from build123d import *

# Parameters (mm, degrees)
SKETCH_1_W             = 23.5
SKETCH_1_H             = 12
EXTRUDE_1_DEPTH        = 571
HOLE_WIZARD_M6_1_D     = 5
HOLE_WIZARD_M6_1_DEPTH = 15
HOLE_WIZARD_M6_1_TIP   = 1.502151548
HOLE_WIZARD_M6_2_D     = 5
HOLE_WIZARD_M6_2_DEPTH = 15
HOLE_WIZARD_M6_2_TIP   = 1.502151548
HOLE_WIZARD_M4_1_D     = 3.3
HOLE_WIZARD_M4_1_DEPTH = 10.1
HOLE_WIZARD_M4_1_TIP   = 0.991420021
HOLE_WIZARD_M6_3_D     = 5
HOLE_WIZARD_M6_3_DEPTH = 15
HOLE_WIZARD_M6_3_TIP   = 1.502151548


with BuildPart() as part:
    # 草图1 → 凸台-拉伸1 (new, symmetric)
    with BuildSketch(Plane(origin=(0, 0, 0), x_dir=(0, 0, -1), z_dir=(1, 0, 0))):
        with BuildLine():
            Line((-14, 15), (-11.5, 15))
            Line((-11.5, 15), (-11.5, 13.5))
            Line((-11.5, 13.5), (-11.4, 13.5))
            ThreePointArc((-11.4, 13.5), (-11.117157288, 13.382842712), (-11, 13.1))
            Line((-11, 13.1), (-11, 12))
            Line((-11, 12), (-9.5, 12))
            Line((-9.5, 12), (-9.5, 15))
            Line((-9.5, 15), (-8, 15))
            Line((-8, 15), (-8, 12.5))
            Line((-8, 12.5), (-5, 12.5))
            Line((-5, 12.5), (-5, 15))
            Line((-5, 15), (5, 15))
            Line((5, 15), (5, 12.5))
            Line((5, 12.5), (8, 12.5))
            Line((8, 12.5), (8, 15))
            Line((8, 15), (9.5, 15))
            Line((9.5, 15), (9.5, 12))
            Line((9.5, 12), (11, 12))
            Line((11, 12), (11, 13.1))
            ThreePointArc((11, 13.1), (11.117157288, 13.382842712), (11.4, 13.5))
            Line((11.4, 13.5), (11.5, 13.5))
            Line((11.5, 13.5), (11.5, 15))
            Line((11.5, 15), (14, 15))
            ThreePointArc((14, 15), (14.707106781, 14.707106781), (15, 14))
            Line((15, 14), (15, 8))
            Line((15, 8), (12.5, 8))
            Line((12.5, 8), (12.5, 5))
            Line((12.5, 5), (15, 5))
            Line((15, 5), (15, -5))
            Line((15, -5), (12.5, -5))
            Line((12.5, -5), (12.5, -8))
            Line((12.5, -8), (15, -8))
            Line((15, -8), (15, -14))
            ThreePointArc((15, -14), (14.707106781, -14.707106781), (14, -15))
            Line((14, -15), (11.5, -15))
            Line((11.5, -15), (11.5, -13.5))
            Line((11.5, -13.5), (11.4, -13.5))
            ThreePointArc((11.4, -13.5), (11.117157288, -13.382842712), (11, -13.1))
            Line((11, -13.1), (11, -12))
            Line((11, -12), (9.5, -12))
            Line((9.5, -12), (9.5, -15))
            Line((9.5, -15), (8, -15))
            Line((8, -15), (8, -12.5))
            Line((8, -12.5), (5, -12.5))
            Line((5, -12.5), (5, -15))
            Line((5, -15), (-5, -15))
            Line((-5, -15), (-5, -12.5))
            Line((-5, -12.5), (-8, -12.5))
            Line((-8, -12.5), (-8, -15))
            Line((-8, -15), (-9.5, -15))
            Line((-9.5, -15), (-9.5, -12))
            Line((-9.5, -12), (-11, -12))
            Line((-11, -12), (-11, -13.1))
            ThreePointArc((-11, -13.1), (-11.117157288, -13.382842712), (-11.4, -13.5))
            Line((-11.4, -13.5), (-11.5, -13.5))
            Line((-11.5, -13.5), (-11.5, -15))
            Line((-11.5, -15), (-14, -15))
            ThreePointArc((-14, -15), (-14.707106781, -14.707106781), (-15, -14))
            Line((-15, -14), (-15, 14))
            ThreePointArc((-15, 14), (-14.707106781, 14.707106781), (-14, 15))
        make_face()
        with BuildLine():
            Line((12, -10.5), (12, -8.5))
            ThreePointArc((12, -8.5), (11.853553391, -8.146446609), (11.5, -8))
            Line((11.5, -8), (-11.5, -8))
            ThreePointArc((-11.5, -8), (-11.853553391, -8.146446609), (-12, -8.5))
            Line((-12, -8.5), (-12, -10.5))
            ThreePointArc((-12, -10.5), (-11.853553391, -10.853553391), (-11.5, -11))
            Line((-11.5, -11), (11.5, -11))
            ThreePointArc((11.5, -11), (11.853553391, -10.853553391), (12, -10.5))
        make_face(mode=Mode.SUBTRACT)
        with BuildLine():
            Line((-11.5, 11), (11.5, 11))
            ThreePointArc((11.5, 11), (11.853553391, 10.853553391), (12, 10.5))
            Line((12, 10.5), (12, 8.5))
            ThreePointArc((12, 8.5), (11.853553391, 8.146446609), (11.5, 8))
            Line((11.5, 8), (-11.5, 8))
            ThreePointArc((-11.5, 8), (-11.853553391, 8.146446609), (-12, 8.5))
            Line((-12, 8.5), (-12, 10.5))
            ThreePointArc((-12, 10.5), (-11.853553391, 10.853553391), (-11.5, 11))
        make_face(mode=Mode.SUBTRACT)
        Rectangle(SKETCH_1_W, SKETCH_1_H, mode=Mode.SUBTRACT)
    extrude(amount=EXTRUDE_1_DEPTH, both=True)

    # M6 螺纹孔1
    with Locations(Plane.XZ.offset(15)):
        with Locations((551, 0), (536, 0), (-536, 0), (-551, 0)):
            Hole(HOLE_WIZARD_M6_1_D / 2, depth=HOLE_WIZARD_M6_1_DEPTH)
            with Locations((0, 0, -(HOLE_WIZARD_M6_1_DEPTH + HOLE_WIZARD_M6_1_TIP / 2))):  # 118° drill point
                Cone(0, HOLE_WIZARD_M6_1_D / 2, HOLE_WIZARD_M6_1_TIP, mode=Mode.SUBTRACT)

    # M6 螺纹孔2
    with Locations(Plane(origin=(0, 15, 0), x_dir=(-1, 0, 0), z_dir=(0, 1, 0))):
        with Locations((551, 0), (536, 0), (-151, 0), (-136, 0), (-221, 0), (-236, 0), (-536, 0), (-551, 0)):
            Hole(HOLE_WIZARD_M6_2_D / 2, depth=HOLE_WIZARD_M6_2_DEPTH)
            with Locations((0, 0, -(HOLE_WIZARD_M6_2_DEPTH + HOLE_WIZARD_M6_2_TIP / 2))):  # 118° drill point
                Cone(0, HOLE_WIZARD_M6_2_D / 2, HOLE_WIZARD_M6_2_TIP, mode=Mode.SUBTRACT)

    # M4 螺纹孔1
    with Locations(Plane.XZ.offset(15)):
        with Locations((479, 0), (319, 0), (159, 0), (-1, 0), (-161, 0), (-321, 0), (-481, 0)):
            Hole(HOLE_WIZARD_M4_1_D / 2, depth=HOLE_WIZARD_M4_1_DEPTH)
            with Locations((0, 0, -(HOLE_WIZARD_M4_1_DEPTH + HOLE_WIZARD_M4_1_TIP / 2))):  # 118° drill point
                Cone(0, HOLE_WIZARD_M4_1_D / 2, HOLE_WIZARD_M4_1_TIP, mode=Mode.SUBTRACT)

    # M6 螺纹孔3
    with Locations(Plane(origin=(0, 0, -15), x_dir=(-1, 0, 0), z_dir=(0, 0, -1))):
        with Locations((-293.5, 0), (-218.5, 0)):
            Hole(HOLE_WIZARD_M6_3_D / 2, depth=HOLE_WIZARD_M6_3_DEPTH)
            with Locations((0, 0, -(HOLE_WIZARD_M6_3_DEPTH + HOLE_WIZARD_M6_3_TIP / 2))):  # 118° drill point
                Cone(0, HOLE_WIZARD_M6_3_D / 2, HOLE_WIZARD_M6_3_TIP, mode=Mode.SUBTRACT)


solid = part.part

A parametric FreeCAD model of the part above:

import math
import FreeCAD as App
import Part
import Sketcher

V = App.Vector
Q = App.Units.Quantity

doc = App.newDocument("Part")
body = doc.addObject("PartDesign::Body", "Body")

# Sketch on YZ plane
sketch1 = body.newObject("Sketcher::SketchObject", "Sketch")
sketch1.AttachmentSupport = (doc.getObject("YZ_Plane"), [""])
sketch1.MapMode = "FlatFace"
sketch1.addGeometry([
    Part.LineSegment(V(15, 11.5, 0), V(15, 14, 0)),  # 0
    Part.ArcOfCircle(Part.Circle(V(14, 14, 0), V(0, 0, 1), 1), math.radians(0), math.radians(90)),  # 1
    Part.LineSegment(V(14, 15, 0), V(-14, 15, 0)),  # 2
    Part.ArcOfCircle(Part.Circle(V(-14, 14, 0), V(0, 0, 1), 1), math.radians(90), math.radians(180)),  # 3
    Part.LineSegment(V(-15, 14, 0), V(-15, 11.5, 0)),  # 4
    Part.LineSegment(V(-15, 11.5, 0), V(-13.5, 11.5, 0)),  # 5
    Part.LineSegment(V(-13.5, 11.5, 0), V(-13.5, 11.4, 0)),  # 6
    Part.ArcOfCircle(Part.Circle(V(-13.1, 11.4, 0), V(0, 0, 1), 0.4), math.radians(-180), math.radians(-90)),  # 7
    Part.LineSegment(V(-13.1, 11, 0), V(-12, 11, 0)),  # 8
    Part.LineSegment(V(-12, 11, 0), V(-12, 9.5, 0)),  # 9
    Part.LineSegment(V(-12, 9.5, 0), V(-15, 9.5, 0)),  # 10
    Part.LineSegment(V(-15, 9.5, 0), V(-15, 8, 0)),  # 11
    Part.LineSegment(V(-15, 8, 0), V(-12.5, 8, 0)),  # 12
    Part.LineSegment(V(-12.5, 8, 0), V(-12.5, 5, 0)),  # 13
    Part.LineSegment(V(-12.5, 5, 0), V(-15, 5, 0)),  # 14
    Part.LineSegment(V(-15, 5, 0), V(-15, -5, 0)),  # 15
    Part.LineSegment(V(-15, -5, 0), V(-12.5, -5, 0)),  # 16
    Part.LineSegment(V(-12.5, -5, 0), V(-12.5, -8, 0)),  # 17
    Part.LineSegment(V(-12.5, -8, 0), V(-15, -8, 0)),  # 18
    Part.LineSegment(V(-15, -8, 0), V(-15, -9.5, 0)),  # 19
    Part.LineSegment(V(-15, -9.5, 0), V(-12, -9.5, 0)),  # 20
    Part.LineSegment(V(-12, -9.5, 0), V(-12, -11, 0)),  # 21
    Part.LineSegment(V(-12, -11, 0), V(-13.1, -11, 0)),  # 22
    Part.ArcOfCircle(Part.Circle(V(-13.1, -11.4, 0), V(0, 0, 1), 0.4), math.radians(90), math.radians(180)),  # 23
    Part.LineSegment(V(-13.5, -11.4, 0), V(-13.5, -11.5, 0)),  # 24
    Part.LineSegment(V(-13.5, -11.5, 0), V(-15, -11.5, 0)),  # 25
    Part.LineSegment(V(-15, -11.5, 0), V(-15, -14, 0)),  # 26
    Part.ArcOfCircle(Part.Circle(V(-14, -14, 0), V(0, 0, 1), 1), math.radians(-180), math.radians(-90)),  # 27
    Part.LineSegment(V(-14, -15, 0), V(-8, -15, 0)),  # 28
    Part.LineSegment(V(-8, -15, 0), V(-8, -12.5, 0)),  # 29
    Part.LineSegment(V(-8, -12.5, 0), V(-5, -12.5, 0)),  # 30
    Part.LineSegment(V(-5, -12.5, 0), V(-5, -15, 0)),  # 31
    Part.LineSegment(V(-5, -15, 0), V(5, -15, 0)),  # 32
    Part.LineSegment(V(5, -15, 0), V(5, -12.5, 0)),  # 33
    Part.LineSegment(V(5, -12.5, 0), V(8, -12.5, 0)),  # 34
    Part.LineSegment(V(8, -12.5, 0), V(8, -15, 0)),  # 35
    Part.LineSegment(V(8, -15, 0), V(14, -15, 0)),  # 36
    Part.ArcOfCircle(Part.Circle(V(14, -14, 0), V(0, 0, 1), 1), math.radians(-90), math.radians(0)),  # 37
    Part.LineSegment(V(15, -14, 0), V(15, -11.5, 0)),  # 38
    Part.LineSegment(V(15, -11.5, 0), V(13.5, -11.5, 0)),  # 39
    Part.LineSegment(V(13.5, -11.5, 0), V(13.5, -11.4, 0)),  # 40
    Part.ArcOfCircle(Part.Circle(V(13.1, -11.4, 0), V(0, 0, 1), 0.4), math.radians(0), math.radians(90)),  # 41
    Part.LineSegment(V(13.1, -11, 0), V(12, -11, 0)),  # 42
    Part.LineSegment(V(12, -11, 0), V(12, -9.5, 0)),  # 43
    Part.LineSegment(V(12, -9.5, 0), V(15, -9.5, 0)),  # 44
    Part.LineSegment(V(15, -9.5, 0), V(15, -8, 0)),  # 45
    Part.LineSegment(V(15, -8, 0), V(12.5, -8, 0)),  # 46
    Part.LineSegment(V(12.5, -8, 0), V(12.5, -5, 0)),  # 47
    Part.LineSegment(V(12.5, -5, 0), V(15, -5, 0)),  # 48
    Part.LineSegment(V(15, -5, 0), V(15, 5, 0)),  # 49
    Part.LineSegment(V(15, 5, 0), V(12.5, 5, 0)),  # 50
    Part.LineSegment(V(12.5, 5, 0), V(12.5, 8, 0)),  # 51
    Part.LineSegment(V(12.5, 8, 0), V(15, 8, 0)),  # 52
    Part.LineSegment(V(15, 8, 0), V(15, 9.5, 0)),  # 53
    Part.LineSegment(V(15, 9.5, 0), V(12, 9.5, 0)),  # 54
    Part.LineSegment(V(12, 9.5, 0), V(12, 11, 0)),  # 55
    Part.LineSegment(V(12, 11, 0), V(13.1, 11, 0)),  # 56
    Part.ArcOfCircle(Part.Circle(V(13.1, 11.4, 0), V(0, 0, 1), 0.4), math.radians(-90), math.radians(0)),  # 57
    Part.LineSegment(V(13.5, 11.4, 0), V(13.5, 11.5, 0)),  # 58
    Part.LineSegment(V(13.5, 11.5, 0), V(15, 11.5, 0)),  # 59
    Part.ArcOfCircle(Part.Circle(V(-10.5, -11.5, 0), V(0, 0, 1), 0.5), math.radians(180), math.radians(270)),  # 60
    Part.LineSegment(V(-11, -11.5, 0), V(-11, 11.5, 0)),  # 61
    Part.ArcOfCircle(Part.Circle(V(-10.5, 11.5, 0), V(0, 0, 1), 0.5), math.radians(90), math.radians(180)),  # 62
    Part.LineSegment(V(-10.5, 12, 0), V(-8.5, 12, 0)),  # 63
    Part.ArcOfCircle(Part.Circle(V(-8.5, 11.5, 0), V(0, 0, 1), 0.5), math.radians(0), math.radians(90)),  # 64
    Part.LineSegment(V(-8, 11.5, 0), V(-8, -11.5, 0)),  # 65
    Part.ArcOfCircle(Part.Circle(V(-8.5, -11.5, 0), V(0, 0, 1), 0.5), math.radians(-90), math.radians(0)),  # 66
    Part.LineSegment(V(-8.5, -12, 0), V(-10.5, -12, 0)),  # 67
    Part.LineSegment(V(-6, 11.75, 0), V(6, 11.75, 0)),  # 68
    Part.LineSegment(V(6, 11.75, 0), V(6, -11.75, 0)),  # 69
    Part.LineSegment(V(6, -11.75, 0), V(-6, -11.75, 0)),  # 70
    Part.LineSegment(V(-6, -11.75, 0), V(-6, 11.75, 0)),  # 71
    Part.LineSegment(V(11, 11.5, 0), V(11, -11.5, 0)),  # 72
    Part.ArcOfCircle(Part.Circle(V(10.5, -11.5, 0), V(0, 0, 1), 0.5), math.radians(-90), math.radians(0)),  # 73
    Part.LineSegment(V(10.5, -12, 0), V(8.5, -12, 0)),  # 74
    Part.ArcOfCircle(Part.Circle(V(8.5, -11.5, 0), V(0, 0, 1), 0.5), math.radians(180), math.radians(270)),  # 75
    Part.LineSegment(V(8, -11.5, 0), V(8, 11.5, 0)),  # 76
    Part.ArcOfCircle(Part.Circle(V(8.5, 11.5, 0), V(0, 0, 1), 0.5), math.radians(90), math.radians(180)),  # 77
    Part.LineSegment(V(8.5, 12, 0), V(10.5, 12, 0)),  # 78
    Part.ArcOfCircle(Part.Circle(V(10.5, 11.5, 0), V(0, 0, 1), 0.5), math.radians(0), math.radians(90)),  # 79
], False)
sketch1.addConstraint([
    Sketcher.Constraint("Tangent", 0, 2, 1, 1),
    Sketcher.Constraint("Tangent", 1, 2, 2, 1),
    Sketcher.Constraint("Tangent", 2, 2, 3, 1),
    Sketcher.Constraint("Tangent", 3, 2, 4, 1),
    Sketcher.Constraint("Coincident", 4, 2, 5, 1),
    Sketcher.Constraint("Coincident", 5, 2, 6, 1),
    Sketcher.Constraint("Tangent", 6, 2, 7, 1),
    Sketcher.Constraint("Tangent", 7, 2, 8, 1),
    Sketcher.Constraint("Coincident", 8, 2, 9, 1),
    Sketcher.Constraint("Coincident", 9, 2, 10, 1),
    Sketcher.Constraint("Coincident", 10, 2, 11, 1),
    Sketcher.Constraint("Coincident", 11, 2, 12, 1),
    Sketcher.Constraint("Coincident", 12, 2, 13, 1),
    Sketcher.Constraint("Coincident", 13, 2, 14, 1),
    Sketcher.Constraint("Coincident", 14, 2, 15, 1),
    Sketcher.Constraint("Coincident", 15, 2, 16, 1),
    Sketcher.Constraint("Coincident", 16, 2, 17, 1),
    Sketcher.Constraint("Coincident", 17, 2, 18, 1),
    Sketcher.Constraint("Coincident", 18, 2, 19, 1),
    Sketcher.Constraint("Coincident", 19, 2, 20, 1),
    Sketcher.Constraint("Coincident", 20, 2, 21, 1),
    Sketcher.Constraint("Coincident", 21, 2, 22, 1),
    Sketcher.Constraint("Tangent", 22, 2, 23, 1),
    Sketcher.Constraint("Tangent", 23, 2, 24, 1),
    Sketcher.Constraint("Coincident", 24, 2, 25, 1),
    Sketcher.Constraint("Coincident", 25, 2, 26, 1),
    Sketcher.Constraint("Tangent", 26, 2, 27, 1),
    Sketcher.Constraint("Tangent", 27, 2, 28, 1),
    Sketcher.Constraint("Coincident", 28, 2, 29, 1),
    Sketcher.Constraint("Coincident", 29, 2, 30, 1),
    Sketcher.Constraint("Coincident", 30, 2, 31, 1),
    Sketcher.Constraint("Coincident", 31, 2, 32, 1),
    Sketcher.Constraint("Coincident", 32, 2, 33, 1),
    Sketcher.Constraint("Coincident", 33, 2, 34, 1),
    Sketcher.Constraint("Coincident", 34, 2, 35, 1),
    Sketcher.Constraint("Coincident", 35, 2, 36, 1),
    Sketcher.Constraint("Tangent", 36, 2, 37, 1),
    Sketcher.Constraint("Tangent", 37, 2, 38, 1),
    Sketcher.Constraint("Coincident", 38, 2, 39, 1),
    Sketcher.Constraint("Coincident", 39, 2, 40, 1),
    Sketcher.Constraint("Tangent", 40, 2, 41, 1),
    Sketcher.Constraint("Tangent", 41, 2, 42, 1),
    Sketcher.Constraint("Coincident", 42, 2, 43, 1),
    Sketcher.Constraint("Coincident", 43, 2, 44, 1),
    Sketcher.Constraint("Coincident", 44, 2, 45, 1),
    Sketcher.Constraint("Coincident", 45, 2, 46, 1),
    Sketcher.Constraint("Coincident", 46, 2, 47, 1),
    Sketcher.Constraint("Coincident", 47, 2, 48, 1),
    Sketcher.Constraint("Coincident", 48, 2, 49, 1),
    Sketcher.Constraint("Coincident", 49, 2, 50, 1),
    Sketcher.Constraint("Coincident", 50, 2, 51, 1),
    Sketcher.Constraint("Coincident", 51, 2, 52, 1),
    Sketcher.Constraint("Coincident", 52, 2, 53, 1),
    Sketcher.Constraint("Coincident", 53, 2, 54, 1),
    Sketcher.Constraint("Coincident", 54, 2, 55, 1),
    Sketcher.Constraint("Coincident", 55, 2, 56, 1),
    Sketcher.Constraint("Tangent", 56, 2, 57, 1),
    Sketcher.Constraint("Tangent", 57, 2, 58, 1),
    Sketcher.Constraint("Coincident", 58, 2, 59, 1),
    Sketcher.Constraint("Coincident", 59, 2, 0, 1),
    Sketcher.Constraint("Tangent", 60, 1, 61, 1),
    Sketcher.Constraint("Tangent", 61, 2, 62, 2),
    Sketcher.Constraint("Tangent", 62, 1, 63, 1),
    Sketcher.Constraint("Tangent", 63, 2, 64, 2),
    Sketcher.Constraint("Tangent", 64, 1, 65, 1),
    Sketcher.Constraint("Tangent", 65, 2, 66, 2),
    Sketcher.Constraint("Tangent", 66, 1, 67, 1),
    Sketcher.Constraint("Tangent", 67, 2, 60, 2),
    Sketcher.Constraint("Coincident", 68, 2, 69, 1),
    Sketcher.Constraint("Coincident", 69, 2, 70, 1),
    Sketcher.Constraint("Coincident", 70, 2, 71, 1),
    Sketcher.Constraint("Coincident", 71, 2, 68, 1),
    Sketcher.Constraint("Tangent", 72, 2, 73, 2),
    Sketcher.Constraint("Tangent", 73, 1, 74, 1),
    Sketcher.Constraint("Tangent", 74, 2, 75, 2),
    Sketcher.Constraint("Tangent", 75, 1, 76, 1),
    Sketcher.Constraint("Tangent", 76, 2, 77, 2),
    Sketcher.Constraint("Tangent", 77, 1, 78, 1),
    Sketcher.Constraint("Tangent", 78, 2, 79, 2),
    Sketcher.Constraint("Tangent", 79, 1, 72, 1),
    Sketcher.Constraint("Vertical", 0),
    Sketcher.Constraint("Horizontal", 2),
    Sketcher.Constraint("Vertical", 4),
    Sketcher.Constraint("Horizontal", 5),
    Sketcher.Constraint("Vertical", 6),
    Sketcher.Constraint("Horizontal", 8),
    Sketcher.Constraint("Vertical", 9),
    Sketcher.Constraint("Horizontal", 10),
    Sketcher.Constraint("Vertical", 11),
    Sketcher.Constraint("Horizontal", 12),
    Sketcher.Constraint("Vertical", 13),
    Sketcher.Constraint("Horizontal", 14),
    Sketcher.Constraint("Vertical", 15),
    Sketcher.Constraint("Horizontal", 16),
    Sketcher.Constraint("Vertical", 17),
    Sketcher.Constraint("Horizontal", 18),
    Sketcher.Constraint("Vertical", 19),
    Sketcher.Constraint("Horizontal", 20),
    Sketcher.Constraint("Vertical", 21),
    Sketcher.Constraint("Horizontal", 22),
    Sketcher.Constraint("Vertical", 24),
    Sketcher.Constraint("Horizontal", 25),
    Sketcher.Constraint("Vertical", 26),
    Sketcher.Constraint("Horizontal", 28),
    Sketcher.Constraint("Vertical", 29),
    Sketcher.Constraint("Horizontal", 30),
    Sketcher.Constraint("Vertical", 31),
    Sketcher.Constraint("Horizontal", 32),
    Sketcher.Constraint("Vertical", 33),
    Sketcher.Constraint("Horizontal", 34),
    Sketcher.Constraint("Vertical", 35),
    Sketcher.Constraint("Horizontal", 36),
    Sketcher.Constraint("Vertical", 38),
    Sketcher.Constraint("Horizontal", 39),
    Sketcher.Constraint("Vertical", 40),
    Sketcher.Constraint("Horizontal", 42),
    Sketcher.Constraint("Vertical", 43),
    Sketcher.Constraint("Horizontal", 44),
    Sketcher.Constraint("Vertical", 45),
    Sketcher.Constraint("Horizontal", 46),
    Sketcher.Constraint("Vertical", 47),
    Sketcher.Constraint("Horizontal", 48),
    Sketcher.Constraint("Vertical", 49),
    Sketcher.Constraint("Horizontal", 50),
    Sketcher.Constraint("Vertical", 51),
    Sketcher.Constraint("Horizontal", 52),
    Sketcher.Constraint("Vertical", 53),
    Sketcher.Constraint("Horizontal", 54),
    Sketcher.Constraint("Vertical", 55),
    Sketcher.Constraint("Horizontal", 56),
    Sketcher.Constraint("Vertical", 58),
    Sketcher.Constraint("Horizontal", 59),
    Sketcher.Constraint("Vertical", 61),
    Sketcher.Constraint("Horizontal", 63),
    Sketcher.Constraint("Vertical", 65),
    Sketcher.Constraint("Horizontal", 67),
    Sketcher.Constraint("Horizontal", 68),
    Sketcher.Constraint("Vertical", 69),
    Sketcher.Constraint("Horizontal", 70),
    Sketcher.Constraint("Vertical", 71),
    Sketcher.Constraint("Vertical", 72),
    Sketcher.Constraint("Horizontal", 74),
    Sketcher.Constraint("Vertical", 76),
    Sketcher.Constraint("Horizontal", 78),
    Sketcher.Constraint("Equal", 1, 3),
    Sketcher.Constraint("Equal", 7, 23),
    Sketcher.Constraint("Equal", 3, 27),
    Sketcher.Constraint("Equal", 27, 37),
    Sketcher.Constraint("Equal", 23, 41),
    Sketcher.Constraint("Equal", 41, 57),
    Sketcher.Constraint("Equal", 60, 62),
    Sketcher.Constraint("Equal", 62, 64),
    Sketcher.Constraint("Equal", 64, 66),
    Sketcher.Constraint("Equal", 66, 73),
    Sketcher.Constraint("Equal", 73, 75),
    Sketcher.Constraint("Equal", 75, 77),
    Sketcher.Constraint("Equal", 77, 79),
    Sketcher.Constraint("Symmetric", 1, 3, 27, 3, -1, 1),
    Sketcher.Constraint("Symmetric", 3, 3, 37, 3, -1, 1),
    Sketcher.Constraint("Symmetric", 7, 3, 41, 3, -1, 1),
    Sketcher.Constraint("Symmetric", 23, 3, 57, 3, -1, 1),
    Sketcher.Constraint("Symmetric", 62, 3, 73, 3, -1, 1),
    Sketcher.Constraint("Symmetric", 66, 3, 77, 3, -1, 1),
    Sketcher.Constraint("Symmetric", 9, 2, 43, 2, -1, 1),
    Sketcher.Constraint("Symmetric", 11, 2, 45, 2, -1, 1),
    Sketcher.Constraint("Symmetric", 13, 2, 47, 2, -1, 1),
    Sketcher.Constraint("Symmetric", 15, 2, 49, 2, -1, 1),
    Sketcher.Constraint("Symmetric", 17, 2, 51, 2, -1, 1),
    Sketcher.Constraint("Symmetric", 19, 2, 53, 2, -1, 1),
    Sketcher.Constraint("Symmetric", 68, 2, 70, 2, -1, 1),
    Sketcher.Constraint("Symmetric", 23, 3, 41, 3, -2),
    Sketcher.Constraint("Symmetric", 30, 2, 33, 2, -2),
    Sketcher.Constraint("Symmetric", 25, 2, 38, 2, -2),
    Sketcher.Constraint("Symmetric", 20, 2, 43, 2, -2),
    Sketcher.Constraint("Symmetric", 18, 2, 45, 2, -2),
    Sketcher.Constraint("Symmetric", 16, 2, 47, 2, -2),
    Sketcher.Constraint("Horizontal", 66, 3, 73, 3),
    Sketcher.Constraint("Horizontal", 79, 3, 4, 2),
    Sketcher.Constraint("Horizontal", 75, 3, 24, 2),
    Sketcher.Constraint("Horizontal", 28, 2, 31, 2),
    Sketcher.Constraint("Horizontal", 5, 2, 58, 2),
    Sketcher.Constraint("Vertical", 4, 2, 10, 2),
    Sketcher.Constraint("Vertical", 11, 2, 14, 2),
    Sketcher.Constraint("Vertical", 43, 2, 54, 2),
    Sketcher.Constraint("Vertical", 29, 2, 64, 1),
    Sketcher.Constraint("Vertical", 35, 2, 75, 1),
    Sketcher.Constraint("Equal", 20, 30),
    Sketcher.Constraint("Equal", 52, 0),
    Sketcher.Constraint("Equal", 59, 9),
    Sketcher.Constraint("Equal", 9, 11),
    Sketcher.Constraint("Equal", 54, 13),
    Sketcher.Constraint("Equal", 32, 15),
    Sketcher.Constraint("Equal", 26, 29),
    Sketcher.Constraint("Radius", 1, Q("1 mm")),
    Sketcher.Constraint("Radius", 7, Q("0.4 mm")),
    Sketcher.Constraint("Radius", 60, Q("0.5 mm")),
    Sketcher.Constraint("DistanceX", 2, 2, 2, 1, Q("28 mm")),
    Sketcher.Constraint("DistanceX", 10, 2, 10, 1, Q("3 mm")),
    Sketcher.Constraint("DistanceX", 28, 1, 28, 2, Q("6 mm")),
    Sketcher.Constraint("DistanceX", 63, 1, 63, 2, Q("2 mm")),
    Sketcher.Constraint("DistanceX", 68, 1, 68, 2, Q("12 mm")),
    Sketcher.Constraint("DistanceY", 61, 1, 61, 2, Q("23 mm")),
    Sketcher.Constraint("DistanceX", 5, 1, 5, 2, Q("1.5 mm")),
    Sketcher.Constraint("DistanceX", 12, 1, 12, 2, Q("2.5 mm")),
    Sketcher.Constraint("DistanceY", 69, 2, 69, 1, Q("23.5 mm")),
])
pad1 = body.newObject("PartDesign::Pad", "Pad")
pad1.Profile = sketch1
pad1.Length = 1142
pad1.Midplane = True

# Sketch on XZ plane
sketch2 = body.newObject("Sketcher::SketchObject", "Sketch001")
sketch2.AttachmentSupport = (doc.getObject("XZ_Plane"), [""])
sketch2.MapMode = "FlatFace"
sketch2.AttachmentOffset = App.Placement(V(0, 0, 15), App.Rotation())
sketch2.addGeometry([
    Part.Circle(V(551, 0, 0), V(0, 0, 1), 2.5),
    Part.Circle(V(536, 0, 0), V(0, 0, 1), 2.5),
    Part.Circle(V(-536, 0, 0), V(0, 0, 1), 2.5),
    Part.Circle(V(-551, 0, 0), V(0, 0, 1), 2.5),
], False)
sketch2.addConstraint([
    Sketcher.Constraint("Equal", 0, 1),
    Sketcher.Constraint("Equal", 1, 2),
    Sketcher.Constraint("Equal", 2, 3),
    Sketcher.Constraint("Symmetric", 1, 3, 2, 3, -1, 1),
    Sketcher.Constraint("Symmetric", 0, 3, 3, 3, -1, 1),
    Sketcher.Constraint("PointOnObject", 0, 3, -1),
    Sketcher.Constraint("PointOnObject", 1, 3, -1),
    Sketcher.Constraint("Diameter", 0, Q("5 mm")),
    Sketcher.Constraint("DistanceX", -1, 1, 0, 3, Q("551 mm")),
    Sketcher.Constraint("DistanceX", -1, 1, 1, 3, Q("536 mm")),
])
doc.recompute()
hole = body.newObject("PartDesign::Hole", "Hole")
hole.Profile = sketch2
hole.ThreadType = "None"
hole.Diameter = 5
hole.DepthType = "Dimension"
hole.Depth = 15
hole.DrillPoint = "Angled"
hole.DrillPointAngle = 118

# Sketch on XZ plane
sketch3 = body.newObject("Sketcher::SketchObject", "Sketch002")
sketch3.AttachmentSupport = (doc.getObject("XZ_Plane"), [""])
sketch3.MapMode = "FlatFace"
sketch3.AttachmentOffset = App.Placement(V(0, 0, -15), App.Rotation())
sketch3.addGeometry([
    Part.Circle(V(-551, 0, 0), V(0, 0, 1), 2.5),  # 0
    Part.Circle(V(-536, 0, 0), V(0, 0, 1), 2.5),  # 1
    Part.Circle(V(151, 0, 0), V(0, 0, 1), 2.5),  # 2
    Part.Circle(V(136, 0, 0), V(0, 0, 1), 2.5),  # 3
    Part.Circle(V(221, 0, 0), V(0, 0, 1), 2.5),  # 4
    Part.Circle(V(236, 0, 0), V(0, 0, 1), 2.5),  # 5
    Part.Circle(V(536, 0, 0), V(0, 0, 1), 2.5),  # 6
    Part.Circle(V(551, 0, 0), V(0, 0, 1), 2.5),  # 7
], False)
sketch3.addConstraint([
    Sketcher.Constraint("Equal", 0, 1),
    Sketcher.Constraint("Equal", 1, 2),
    Sketcher.Constraint("Equal", 2, 3),
    Sketcher.Constraint("Equal", 3, 4),
    Sketcher.Constraint("Equal", 4, 5),
    Sketcher.Constraint("Equal", 5, 6),
    Sketcher.Constraint("Equal", 6, 7),
    Sketcher.Constraint("Symmetric", 1, 3, 6, 3, -1, 1),
    Sketcher.Constraint("Symmetric", 0, 3, 7, 3, -1, 1),
    Sketcher.Constraint("PointOnObject", 0, 3, -1),
    Sketcher.Constraint("PointOnObject", 1, 3, -1),
    Sketcher.Constraint("PointOnObject", 2, 3, -1),
    Sketcher.Constraint("PointOnObject", 3, 3, -1),
    Sketcher.Constraint("PointOnObject", 4, 3, -1),
    Sketcher.Constraint("PointOnObject", 5, 3, -1),
    Sketcher.Constraint("Diameter", 0, Q("5 mm")),
    Sketcher.Constraint("DistanceX", 0, 3, -1, 1, Q("551 mm")),
    Sketcher.Constraint("DistanceX", 1, 3, -1, 1, Q("536 mm")),
    Sketcher.Constraint("DistanceX", -1, 1, 2, 3, Q("151 mm")),
    Sketcher.Constraint("DistanceX", -1, 1, 3, 3, Q("136 mm")),
    Sketcher.Constraint("DistanceX", -1, 1, 4, 3, Q("221 mm")),
    Sketcher.Constraint("DistanceX", -1, 1, 5, 3, Q("236 mm")),
])
doc.recompute()
hole2 = body.newObject("PartDesign::Hole", "Hole001")
hole2.Profile = sketch3
hole2.ThreadType = "None"
hole2.Diameter = 5
hole2.DepthType = "Dimension"
hole2.Depth = 15
hole2.DrillPoint = "Angled"
hole2.DrillPointAngle = 118
hole2.Reversed = True

# Sketch on XZ plane
sketch4 = body.newObject("Sketcher::SketchObject", "Sketch003")
sketch4.AttachmentSupport = (doc.getObject("XZ_Plane"), [""])
sketch4.MapMode = "FlatFace"
sketch4.AttachmentOffset = App.Placement(V(0, 0, 15), App.Rotation())
sketch4.addGeometry([
    Part.Circle(V(479, 0, 0), V(0, 0, 1), 1.6),  # 0
    Part.Circle(V(319, 0, 0), V(0, 0, 1), 1.6),  # 1
    Part.Circle(V(159, 0, 0), V(0, 0, 1), 1.6),  # 2
    Part.Circle(V(-1, 0, 0), V(0, 0, 1), 1.6),  # 3
    Part.Circle(V(-161, 0, 0), V(0, 0, 1), 1.6),  # 4
    Part.Circle(V(-321, 0, 0), V(0, 0, 1), 1.6),  # 5
    Part.Circle(V(-481, 0, 0), V(0, 0, 1), 1.6),  # 6
], False)
sketch4.addConstraint([
    Sketcher.Constraint("Equal", 0, 1),
    Sketcher.Constraint("Equal", 1, 2),
    Sketcher.Constraint("Equal", 2, 3),
    Sketcher.Constraint("Equal", 3, 4),
    Sketcher.Constraint("Equal", 4, 5),
    Sketcher.Constraint("Equal", 5, 6),
    Sketcher.Constraint("PointOnObject", 0, 3, -1),
    Sketcher.Constraint("PointOnObject", 1, 3, -1),
    Sketcher.Constraint("PointOnObject", 2, 3, -1),
    Sketcher.Constraint("PointOnObject", 3, 3, -1),
    Sketcher.Constraint("PointOnObject", 4, 3, -1),
    Sketcher.Constraint("PointOnObject", 5, 3, -1),
    Sketcher.Constraint("PointOnObject", 6, 3, -1),
    Sketcher.Constraint("Diameter", 0, Q("3.3 mm")),
    Sketcher.Constraint("DistanceX", -1, 1, 0, 3, Q("479 mm")),
    Sketcher.Constraint("DistanceX", -1, 1, 1, 3, Q("319 mm")),
    Sketcher.Constraint("DistanceX", -1, 1, 2, 3, Q("159 mm")),
    Sketcher.Constraint("DistanceX", 3, 3, -1, 1, Q("1 mm")),
    Sketcher.Constraint("DistanceX", 4, 3, -1, 1, Q("161 mm")),
    Sketcher.Constraint("DistanceX", 5, 3, -1, 1, Q("321 mm")),
    Sketcher.Constraint("DistanceX", 6, 3, -1, 1, Q("481 mm")),
])
doc.recompute()
hole3 = body.newObject("PartDesign::Hole", "Hole002")
hole3.Profile = sketch4
hole3.ThreadType = "None"
hole3.Diameter = 3.3
hole3.DepthType = "Dimension"
hole3.Depth = 10.1
hole3.DrillPoint = "Angled"
hole3.DrillPointAngle = 118

# Sketch on XY plane
sketch5 = body.newObject("Sketcher::SketchObject", "Sketch004")
sketch5.AttachmentSupport = (doc.getObject("XY_Plane"), [""])
sketch5.MapMode = "FlatFace"
sketch5.AttachmentOffset = App.Placement(V(0, 0, -15), App.Rotation())
sketch5.addGeometry([
    Part.Circle(V(293.5, 0, 0), V(0, 0, 1), 2.5),
    Part.Circle(V(218.5, 0, 0), V(0, 0, 1), 2.5),
], False)
sketch5.addConstraint([
    Sketcher.Constraint("Equal", 0, 1),
    Sketcher.Constraint("PointOnObject", 0, 3, -1),
    Sketcher.Constraint("PointOnObject", 1, 3, -1),
    Sketcher.Constraint("Diameter", 0, Q("5 mm")),
    Sketcher.Constraint("DistanceX", 1, 3, 0, 3, Q("75 mm")),
    Sketcher.Constraint("DistanceX", -1, 1, 0, 3, Q("293.5 mm")),
])
doc.recompute()
hole4 = body.newObject("PartDesign::Hole", "Hole003")
hole4.Profile = sketch5
hole4.ThreadType = "None"
hole4.Diameter = 5
hole4.DepthType = "Dimension"
hole4.Depth = 15
hole4.DrillPoint = "Angled"
hole4.DrillPointAngle = 118
hole4.Reversed = True

doc.recompute()
